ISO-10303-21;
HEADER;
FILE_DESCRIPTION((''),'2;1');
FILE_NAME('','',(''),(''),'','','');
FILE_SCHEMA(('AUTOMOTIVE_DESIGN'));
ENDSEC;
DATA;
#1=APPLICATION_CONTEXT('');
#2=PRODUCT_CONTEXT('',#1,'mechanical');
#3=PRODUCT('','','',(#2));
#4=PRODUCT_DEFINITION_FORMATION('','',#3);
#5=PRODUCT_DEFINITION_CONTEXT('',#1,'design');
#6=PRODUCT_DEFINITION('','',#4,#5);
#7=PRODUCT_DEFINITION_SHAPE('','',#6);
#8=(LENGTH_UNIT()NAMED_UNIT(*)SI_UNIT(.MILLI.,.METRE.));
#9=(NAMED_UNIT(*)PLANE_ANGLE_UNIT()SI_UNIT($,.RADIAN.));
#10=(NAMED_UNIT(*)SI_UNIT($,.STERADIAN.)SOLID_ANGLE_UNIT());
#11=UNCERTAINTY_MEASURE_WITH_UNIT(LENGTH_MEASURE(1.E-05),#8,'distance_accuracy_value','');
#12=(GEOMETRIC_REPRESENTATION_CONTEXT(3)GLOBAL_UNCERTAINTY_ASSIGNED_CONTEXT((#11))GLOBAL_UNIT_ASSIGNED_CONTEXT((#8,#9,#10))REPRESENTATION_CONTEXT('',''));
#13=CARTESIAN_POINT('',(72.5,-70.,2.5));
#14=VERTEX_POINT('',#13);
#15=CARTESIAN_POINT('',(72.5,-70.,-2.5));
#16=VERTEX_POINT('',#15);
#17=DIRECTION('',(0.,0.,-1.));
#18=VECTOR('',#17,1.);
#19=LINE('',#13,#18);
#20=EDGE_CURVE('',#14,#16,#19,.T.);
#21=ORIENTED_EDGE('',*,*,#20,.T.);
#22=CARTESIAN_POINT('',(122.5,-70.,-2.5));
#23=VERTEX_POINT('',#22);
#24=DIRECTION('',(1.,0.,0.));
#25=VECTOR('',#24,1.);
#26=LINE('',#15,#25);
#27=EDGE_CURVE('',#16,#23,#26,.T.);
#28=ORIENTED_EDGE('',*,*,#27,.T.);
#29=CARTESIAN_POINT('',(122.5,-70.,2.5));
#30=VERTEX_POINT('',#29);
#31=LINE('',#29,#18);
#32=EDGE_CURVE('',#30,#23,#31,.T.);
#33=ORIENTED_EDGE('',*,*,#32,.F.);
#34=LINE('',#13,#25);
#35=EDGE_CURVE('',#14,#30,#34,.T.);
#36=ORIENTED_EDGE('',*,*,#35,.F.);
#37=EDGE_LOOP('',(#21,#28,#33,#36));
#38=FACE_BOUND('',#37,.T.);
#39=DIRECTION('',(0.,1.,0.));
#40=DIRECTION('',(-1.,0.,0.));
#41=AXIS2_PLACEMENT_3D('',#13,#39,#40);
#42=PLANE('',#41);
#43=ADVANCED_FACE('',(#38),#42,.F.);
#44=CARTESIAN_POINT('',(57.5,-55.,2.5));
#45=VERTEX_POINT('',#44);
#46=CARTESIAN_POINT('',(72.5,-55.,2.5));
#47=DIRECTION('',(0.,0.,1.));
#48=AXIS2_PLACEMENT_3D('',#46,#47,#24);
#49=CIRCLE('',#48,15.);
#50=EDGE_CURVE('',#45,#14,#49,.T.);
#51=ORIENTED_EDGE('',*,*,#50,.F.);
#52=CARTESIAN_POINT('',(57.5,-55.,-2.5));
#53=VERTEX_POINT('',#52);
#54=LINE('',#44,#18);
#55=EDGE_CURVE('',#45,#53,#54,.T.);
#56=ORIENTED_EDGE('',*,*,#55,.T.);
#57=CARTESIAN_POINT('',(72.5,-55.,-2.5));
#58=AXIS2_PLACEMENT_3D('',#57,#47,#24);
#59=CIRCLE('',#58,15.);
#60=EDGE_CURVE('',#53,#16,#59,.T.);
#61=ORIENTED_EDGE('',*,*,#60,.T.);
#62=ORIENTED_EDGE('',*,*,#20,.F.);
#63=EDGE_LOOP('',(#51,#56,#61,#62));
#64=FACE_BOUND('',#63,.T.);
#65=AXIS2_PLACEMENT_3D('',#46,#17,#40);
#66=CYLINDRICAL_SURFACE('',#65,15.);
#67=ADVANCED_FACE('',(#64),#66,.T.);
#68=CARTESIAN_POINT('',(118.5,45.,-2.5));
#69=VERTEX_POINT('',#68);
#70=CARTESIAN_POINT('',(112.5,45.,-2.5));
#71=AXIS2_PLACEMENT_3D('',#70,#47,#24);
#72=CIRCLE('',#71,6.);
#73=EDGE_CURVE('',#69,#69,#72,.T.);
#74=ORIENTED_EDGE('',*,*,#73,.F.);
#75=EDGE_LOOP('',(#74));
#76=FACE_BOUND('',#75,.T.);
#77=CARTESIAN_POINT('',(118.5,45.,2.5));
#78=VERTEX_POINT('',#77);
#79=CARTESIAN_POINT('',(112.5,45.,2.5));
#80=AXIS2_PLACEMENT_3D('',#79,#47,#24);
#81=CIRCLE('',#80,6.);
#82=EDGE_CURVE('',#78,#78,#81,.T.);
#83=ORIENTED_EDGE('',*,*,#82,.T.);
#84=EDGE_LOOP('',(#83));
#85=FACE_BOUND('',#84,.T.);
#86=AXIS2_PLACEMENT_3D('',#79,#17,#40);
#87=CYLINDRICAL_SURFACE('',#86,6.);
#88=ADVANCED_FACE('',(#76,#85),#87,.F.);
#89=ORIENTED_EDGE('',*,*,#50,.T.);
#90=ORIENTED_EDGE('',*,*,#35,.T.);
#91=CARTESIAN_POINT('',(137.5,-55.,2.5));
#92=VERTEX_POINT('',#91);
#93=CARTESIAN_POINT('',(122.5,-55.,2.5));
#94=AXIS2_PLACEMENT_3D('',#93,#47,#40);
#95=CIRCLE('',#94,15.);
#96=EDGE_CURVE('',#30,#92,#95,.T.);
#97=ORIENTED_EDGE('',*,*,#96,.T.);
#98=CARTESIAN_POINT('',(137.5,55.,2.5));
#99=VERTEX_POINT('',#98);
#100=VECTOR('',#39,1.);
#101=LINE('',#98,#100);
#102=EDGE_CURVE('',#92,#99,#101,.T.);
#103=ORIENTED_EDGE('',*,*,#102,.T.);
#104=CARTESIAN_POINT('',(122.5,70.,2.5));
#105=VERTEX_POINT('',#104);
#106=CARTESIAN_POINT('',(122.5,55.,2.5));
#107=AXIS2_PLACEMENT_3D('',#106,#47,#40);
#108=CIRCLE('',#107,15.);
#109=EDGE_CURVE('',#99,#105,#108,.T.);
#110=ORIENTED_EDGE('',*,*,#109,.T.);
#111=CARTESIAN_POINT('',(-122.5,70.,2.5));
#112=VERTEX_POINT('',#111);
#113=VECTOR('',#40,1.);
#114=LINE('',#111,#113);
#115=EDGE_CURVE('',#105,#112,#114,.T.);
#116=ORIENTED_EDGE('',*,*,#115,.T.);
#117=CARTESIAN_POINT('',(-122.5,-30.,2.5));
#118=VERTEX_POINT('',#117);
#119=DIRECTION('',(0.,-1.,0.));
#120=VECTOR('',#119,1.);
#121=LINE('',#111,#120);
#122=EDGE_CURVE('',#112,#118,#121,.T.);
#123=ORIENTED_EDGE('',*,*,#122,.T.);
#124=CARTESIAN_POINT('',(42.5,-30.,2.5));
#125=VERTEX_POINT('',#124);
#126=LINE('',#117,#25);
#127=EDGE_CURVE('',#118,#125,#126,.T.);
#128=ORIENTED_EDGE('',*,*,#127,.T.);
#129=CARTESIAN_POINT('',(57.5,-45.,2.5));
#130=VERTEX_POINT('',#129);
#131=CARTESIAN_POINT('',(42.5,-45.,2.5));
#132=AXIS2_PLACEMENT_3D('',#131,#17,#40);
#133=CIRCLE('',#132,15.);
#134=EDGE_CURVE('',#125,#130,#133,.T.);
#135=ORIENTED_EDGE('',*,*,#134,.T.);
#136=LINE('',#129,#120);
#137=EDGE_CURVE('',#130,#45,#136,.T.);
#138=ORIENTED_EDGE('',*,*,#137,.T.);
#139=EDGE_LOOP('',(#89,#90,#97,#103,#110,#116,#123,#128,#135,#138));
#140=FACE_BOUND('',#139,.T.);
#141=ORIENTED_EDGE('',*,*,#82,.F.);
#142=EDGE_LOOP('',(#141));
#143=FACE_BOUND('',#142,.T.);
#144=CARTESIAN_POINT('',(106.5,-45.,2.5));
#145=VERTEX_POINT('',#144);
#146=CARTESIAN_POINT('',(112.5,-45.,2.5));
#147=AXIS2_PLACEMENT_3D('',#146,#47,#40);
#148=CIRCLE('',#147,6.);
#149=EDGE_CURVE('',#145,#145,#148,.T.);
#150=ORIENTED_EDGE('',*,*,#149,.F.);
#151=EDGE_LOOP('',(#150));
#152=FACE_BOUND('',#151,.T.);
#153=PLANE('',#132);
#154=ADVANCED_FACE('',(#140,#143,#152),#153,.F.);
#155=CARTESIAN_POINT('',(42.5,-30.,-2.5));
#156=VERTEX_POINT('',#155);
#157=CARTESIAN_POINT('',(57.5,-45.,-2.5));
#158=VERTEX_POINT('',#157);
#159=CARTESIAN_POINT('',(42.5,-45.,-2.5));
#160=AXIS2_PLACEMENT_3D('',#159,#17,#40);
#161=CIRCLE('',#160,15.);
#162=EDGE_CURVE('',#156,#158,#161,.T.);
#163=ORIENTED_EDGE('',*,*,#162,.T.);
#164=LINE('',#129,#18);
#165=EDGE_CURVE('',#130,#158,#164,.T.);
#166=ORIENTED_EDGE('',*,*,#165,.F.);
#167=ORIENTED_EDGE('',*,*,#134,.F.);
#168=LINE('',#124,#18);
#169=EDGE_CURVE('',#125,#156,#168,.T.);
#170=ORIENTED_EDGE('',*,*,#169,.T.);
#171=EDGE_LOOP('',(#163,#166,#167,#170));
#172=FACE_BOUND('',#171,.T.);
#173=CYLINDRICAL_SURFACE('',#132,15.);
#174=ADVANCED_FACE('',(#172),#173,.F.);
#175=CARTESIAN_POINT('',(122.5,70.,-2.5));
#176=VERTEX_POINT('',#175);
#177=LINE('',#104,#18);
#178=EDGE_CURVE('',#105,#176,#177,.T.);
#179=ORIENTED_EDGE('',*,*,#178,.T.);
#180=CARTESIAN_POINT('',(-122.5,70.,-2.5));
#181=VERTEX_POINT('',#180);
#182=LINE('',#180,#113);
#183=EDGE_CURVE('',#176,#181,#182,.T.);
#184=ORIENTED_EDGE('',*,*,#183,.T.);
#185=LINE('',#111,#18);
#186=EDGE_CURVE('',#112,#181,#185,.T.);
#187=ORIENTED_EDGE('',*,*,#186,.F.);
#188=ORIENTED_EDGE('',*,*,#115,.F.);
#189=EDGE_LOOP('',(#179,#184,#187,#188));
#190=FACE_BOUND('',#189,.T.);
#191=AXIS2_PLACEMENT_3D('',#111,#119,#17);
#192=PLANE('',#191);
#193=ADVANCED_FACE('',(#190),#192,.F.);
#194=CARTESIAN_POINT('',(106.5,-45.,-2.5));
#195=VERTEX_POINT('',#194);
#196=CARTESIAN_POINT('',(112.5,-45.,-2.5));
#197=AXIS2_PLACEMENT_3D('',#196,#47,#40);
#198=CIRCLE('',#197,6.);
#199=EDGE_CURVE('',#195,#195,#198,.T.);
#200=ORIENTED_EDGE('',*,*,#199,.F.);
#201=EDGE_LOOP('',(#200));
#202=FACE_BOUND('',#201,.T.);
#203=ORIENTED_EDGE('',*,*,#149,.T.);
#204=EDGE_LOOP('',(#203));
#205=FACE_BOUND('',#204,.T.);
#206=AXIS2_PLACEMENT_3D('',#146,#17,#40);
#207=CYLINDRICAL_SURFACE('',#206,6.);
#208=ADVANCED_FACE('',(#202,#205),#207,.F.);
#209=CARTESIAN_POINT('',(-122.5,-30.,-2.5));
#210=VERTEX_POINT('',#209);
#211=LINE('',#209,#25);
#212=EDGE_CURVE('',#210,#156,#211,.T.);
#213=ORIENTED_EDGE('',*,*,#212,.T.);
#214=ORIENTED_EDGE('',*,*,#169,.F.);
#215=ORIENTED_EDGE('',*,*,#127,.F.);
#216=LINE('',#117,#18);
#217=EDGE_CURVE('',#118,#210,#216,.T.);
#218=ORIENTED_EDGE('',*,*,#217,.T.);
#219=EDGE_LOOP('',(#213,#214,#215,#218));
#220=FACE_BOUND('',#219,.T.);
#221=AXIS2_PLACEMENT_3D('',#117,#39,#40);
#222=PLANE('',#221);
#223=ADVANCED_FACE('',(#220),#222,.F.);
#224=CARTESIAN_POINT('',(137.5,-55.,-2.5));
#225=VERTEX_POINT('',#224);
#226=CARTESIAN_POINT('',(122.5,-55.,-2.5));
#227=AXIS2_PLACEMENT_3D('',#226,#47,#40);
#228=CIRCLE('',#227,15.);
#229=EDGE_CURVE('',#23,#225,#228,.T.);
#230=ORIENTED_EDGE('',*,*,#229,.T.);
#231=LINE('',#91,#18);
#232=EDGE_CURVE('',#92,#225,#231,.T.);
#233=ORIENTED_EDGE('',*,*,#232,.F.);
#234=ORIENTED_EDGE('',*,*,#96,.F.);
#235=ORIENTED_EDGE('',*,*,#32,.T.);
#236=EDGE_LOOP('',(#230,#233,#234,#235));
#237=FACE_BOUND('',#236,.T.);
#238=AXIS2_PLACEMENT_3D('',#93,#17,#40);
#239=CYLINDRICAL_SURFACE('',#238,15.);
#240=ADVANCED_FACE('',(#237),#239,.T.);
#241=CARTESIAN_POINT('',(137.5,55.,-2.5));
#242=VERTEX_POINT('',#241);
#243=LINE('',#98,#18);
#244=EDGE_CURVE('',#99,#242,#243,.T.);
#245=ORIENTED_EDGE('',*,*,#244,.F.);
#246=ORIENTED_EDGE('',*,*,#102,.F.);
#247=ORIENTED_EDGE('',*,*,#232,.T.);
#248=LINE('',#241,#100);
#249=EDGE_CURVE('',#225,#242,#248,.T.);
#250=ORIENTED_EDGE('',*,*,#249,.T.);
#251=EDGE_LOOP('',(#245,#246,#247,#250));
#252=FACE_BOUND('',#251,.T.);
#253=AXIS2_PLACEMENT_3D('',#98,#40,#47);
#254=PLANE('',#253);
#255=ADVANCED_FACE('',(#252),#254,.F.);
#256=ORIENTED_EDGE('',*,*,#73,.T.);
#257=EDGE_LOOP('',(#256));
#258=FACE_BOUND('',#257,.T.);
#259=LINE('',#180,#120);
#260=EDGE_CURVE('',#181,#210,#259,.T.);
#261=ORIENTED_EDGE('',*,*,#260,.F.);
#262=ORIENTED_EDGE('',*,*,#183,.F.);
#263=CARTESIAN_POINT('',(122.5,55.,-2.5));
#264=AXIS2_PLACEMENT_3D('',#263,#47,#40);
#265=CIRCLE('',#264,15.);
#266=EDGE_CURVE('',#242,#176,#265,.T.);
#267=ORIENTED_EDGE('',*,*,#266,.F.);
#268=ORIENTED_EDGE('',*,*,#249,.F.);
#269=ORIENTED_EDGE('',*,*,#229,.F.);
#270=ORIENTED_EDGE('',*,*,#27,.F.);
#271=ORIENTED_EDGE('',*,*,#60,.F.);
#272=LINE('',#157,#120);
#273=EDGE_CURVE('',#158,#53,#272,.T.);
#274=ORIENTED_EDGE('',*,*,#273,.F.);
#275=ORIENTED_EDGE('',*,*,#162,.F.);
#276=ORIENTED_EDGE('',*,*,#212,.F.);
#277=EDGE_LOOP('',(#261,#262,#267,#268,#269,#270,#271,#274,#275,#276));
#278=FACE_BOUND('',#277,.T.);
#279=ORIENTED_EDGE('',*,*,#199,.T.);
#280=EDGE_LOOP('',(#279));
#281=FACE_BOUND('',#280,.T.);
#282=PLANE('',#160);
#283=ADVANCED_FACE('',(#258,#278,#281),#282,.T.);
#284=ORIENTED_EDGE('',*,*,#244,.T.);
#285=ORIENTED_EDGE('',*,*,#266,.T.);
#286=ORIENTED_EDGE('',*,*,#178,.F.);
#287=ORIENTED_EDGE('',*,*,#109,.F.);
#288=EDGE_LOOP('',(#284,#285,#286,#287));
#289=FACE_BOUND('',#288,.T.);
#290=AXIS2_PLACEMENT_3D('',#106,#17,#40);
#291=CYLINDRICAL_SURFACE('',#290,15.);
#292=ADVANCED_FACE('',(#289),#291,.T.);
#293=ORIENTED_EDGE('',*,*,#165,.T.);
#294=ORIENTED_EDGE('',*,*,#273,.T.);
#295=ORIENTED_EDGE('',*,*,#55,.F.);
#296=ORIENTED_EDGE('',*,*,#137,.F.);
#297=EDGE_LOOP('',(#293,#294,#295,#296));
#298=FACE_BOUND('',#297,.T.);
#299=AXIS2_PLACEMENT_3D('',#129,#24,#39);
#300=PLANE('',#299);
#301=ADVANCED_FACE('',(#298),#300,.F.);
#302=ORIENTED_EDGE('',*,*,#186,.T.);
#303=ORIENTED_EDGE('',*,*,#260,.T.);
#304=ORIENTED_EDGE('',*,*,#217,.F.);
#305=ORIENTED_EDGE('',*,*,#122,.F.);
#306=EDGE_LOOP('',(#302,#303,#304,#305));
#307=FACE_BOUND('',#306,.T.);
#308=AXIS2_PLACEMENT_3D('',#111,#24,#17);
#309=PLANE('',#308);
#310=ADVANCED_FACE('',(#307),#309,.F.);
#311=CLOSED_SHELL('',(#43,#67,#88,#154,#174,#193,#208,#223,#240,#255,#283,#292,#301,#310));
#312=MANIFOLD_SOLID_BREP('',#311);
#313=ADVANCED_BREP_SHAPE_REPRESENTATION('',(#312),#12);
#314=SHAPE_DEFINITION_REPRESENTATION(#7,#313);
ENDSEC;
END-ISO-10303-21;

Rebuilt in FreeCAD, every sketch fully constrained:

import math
import FreeCAD as App
import Part
import Sketcher
Q = App.Units.Quantity

doc = App.newDocument("Part")
body = doc.addObject("PartDesign::Body", "Body")

# Sketch on XY plane
sketch1 = body.newObject("Sketcher::SketchObject", "Sketch")
sketch1.AttachmentSupport = (doc.getObject("XY_Plane"), [""])
sketch1.MapMode = "FlatFace"
sketch1.addGeometry(Part.LineSegment(App.Vector(122.5, 70, 0), App.Vector(-122.5, 70, 0)), False)
sketch1.addGeometry(Part.LineSegment(App.Vector(-122.5, 70, 0), App.Vector(-122.5, -30, 0)), False)
sketch1.addGeometry(Part.LineSegment(App.Vector(-122.5, -30, 0), App.Vector(42.5, -30, 0)), False)
sketch1.addGeometry(Part.ArcOfCircle(Part.Circle(App.Vector(42.5, -45, 0), App.Vector(0, 0, 1), 15), math.radians(0), math.radians(90)), False)
sketch1.addGeometry(Part.LineSegment(App.Vector(57.5, -45, 0), App.Vector(57.5, -55, 0)), False)
sketch1.addGeometry(Part.ArcOfCircle(Part.Circle(App.Vector(72.5, -55, 0), App.Vector(0, 0, 1), 15), math.radians(180), math.radians(270)), False)
sketch1.addGeometry(Part.LineSegment(App.Vector(72.5, -70, 0), App.Vector(122.5, -70, 0)), False)
sketch1.addGeometry(Part.ArcOfCircle(Part.Circle(App.Vector(122.5, -55, 0), App.Vector(0, 0, 1), 15), math.radians(-90), math.radians(0)), False)
sketch1.addGeometry(Part.LineSegment(App.Vector(137.5, -55, 0), App.Vector(137.5, 55, 0)), False)
sketch1.addGeometry(Part.ArcOfCircle(Part.Circle(App.Vector(122.5, 55, 0), App.Vector(0, 0, 1), 15), math.radians(0), math.radians(90)), False)
sketch1.addGeometry(Part.Circle(App.Vector(112.5, -45, 0), App.Vector(0, 0, 1), 6), False)
sketch1.addGeometry(Part.Circle(App.Vector(112.5, 45, 0), App.Vector(0, 0, 1), 6), False)
sketch1.addConstraint(Sketcher.Constraint("Coincident", 0, 2, 1, 1))
sketch1.addConstraint(Sketcher.Constraint("Coincident", 1, 2, 2, 1))
sketch1.addConstraint(Sketcher.Constraint("Tangent", 2, 2, 3, 2))
sketch1.addConstraint(Sketcher.Constraint("Tangent", 3, 1, 4, 1))
sketch1.addConstraint(Sketcher.Constraint("Tangent", 4, 2, 5, 1))
sketch1.addConstraint(Sketcher.Constraint("Tangent", 5, 2, 6, 1))
sketch1.addConstraint(Sketcher.Constraint("Tangent", 6, 2, 7, 1))
sketch1.addConstraint(Sketcher.Constraint("Tangent", 7, 2, 8, 1))
sketch1.addConstraint(Sketcher.Constraint("Tangent", 8, 2, 9, 1))
sketch1.addConstraint(Sketcher.Constraint("Tangent", 9, 2, 0, 1))
sketch1.addConstraint(Sketcher.Constraint("Horizontal", 0))
sketch1.addConstraint(Sketcher.Constraint("Vertical", 1))
sketch1.addConstraint(Sketcher.Constraint("Horizontal", 2))
sketch1.addConstraint(Sketcher.Constraint("Vertical", 4))
sketch1.addConstraint(Sketcher.Constraint("Horizontal", 6))
sketch1.addConstraint(Sketcher.Constraint("Vertical", 8))
sketch1.addConstraint(Sketcher.Constraint("Equal", 3, 5))
sketch1.addConstraint(Sketcher.Constraint("Equal", 5, 7))
sketch1.addConstraint(Sketcher.Constraint("Equal", 7, 9))
sketch1.addConstraint(Sketcher.Constraint("Equal", 10, 11))
sketch1.addConstraint(Sketcher.Constraint("Symmetric", 0, 2, 6, 2, -1, 1))
sketch1.addConstraint(Sketcher.Constraint("Symmetric", 10, 3, 11, 3, -1))
sketch1.addConstraint(Sketcher.Constraint("Horizontal", 3, 3, 10, 3))
sketch1.addConstraint(Sketcher.Constraint("Diameter", 10, Q("12 mm")))
sketch1.addConstraint(Sketcher.Constraint("Radius", 3, Q("15 mm")))
sketch1.addConstraint(Sketcher.Constraint("DistanceX", 0, 2, 0, 1, Q("245 mm")))
sketch1.addConstraint(Sketcher.Constraint("DistanceX", 2, 1, 2, 2, Q("165 mm")))
sketch1.addConstraint(Sketcher.Constraint("DistanceY", 1, 2, 1, 1, Q("100 mm")))
sketch1.addConstraint(Sketcher.Constraint("DistanceY", 4, 2, 4, 1, Q("10 mm")))
sketch1.addConstraint(Sketcher.Constraint("DistanceX", 10, 3, 7, 3, Q("10 mm")))
pad1 = body.newObject("PartDesign::Pad", "Pad")
pad1.Profile = sketch1
pad1.Length = 5
pad1.Midplane = True

doc.recompute()
